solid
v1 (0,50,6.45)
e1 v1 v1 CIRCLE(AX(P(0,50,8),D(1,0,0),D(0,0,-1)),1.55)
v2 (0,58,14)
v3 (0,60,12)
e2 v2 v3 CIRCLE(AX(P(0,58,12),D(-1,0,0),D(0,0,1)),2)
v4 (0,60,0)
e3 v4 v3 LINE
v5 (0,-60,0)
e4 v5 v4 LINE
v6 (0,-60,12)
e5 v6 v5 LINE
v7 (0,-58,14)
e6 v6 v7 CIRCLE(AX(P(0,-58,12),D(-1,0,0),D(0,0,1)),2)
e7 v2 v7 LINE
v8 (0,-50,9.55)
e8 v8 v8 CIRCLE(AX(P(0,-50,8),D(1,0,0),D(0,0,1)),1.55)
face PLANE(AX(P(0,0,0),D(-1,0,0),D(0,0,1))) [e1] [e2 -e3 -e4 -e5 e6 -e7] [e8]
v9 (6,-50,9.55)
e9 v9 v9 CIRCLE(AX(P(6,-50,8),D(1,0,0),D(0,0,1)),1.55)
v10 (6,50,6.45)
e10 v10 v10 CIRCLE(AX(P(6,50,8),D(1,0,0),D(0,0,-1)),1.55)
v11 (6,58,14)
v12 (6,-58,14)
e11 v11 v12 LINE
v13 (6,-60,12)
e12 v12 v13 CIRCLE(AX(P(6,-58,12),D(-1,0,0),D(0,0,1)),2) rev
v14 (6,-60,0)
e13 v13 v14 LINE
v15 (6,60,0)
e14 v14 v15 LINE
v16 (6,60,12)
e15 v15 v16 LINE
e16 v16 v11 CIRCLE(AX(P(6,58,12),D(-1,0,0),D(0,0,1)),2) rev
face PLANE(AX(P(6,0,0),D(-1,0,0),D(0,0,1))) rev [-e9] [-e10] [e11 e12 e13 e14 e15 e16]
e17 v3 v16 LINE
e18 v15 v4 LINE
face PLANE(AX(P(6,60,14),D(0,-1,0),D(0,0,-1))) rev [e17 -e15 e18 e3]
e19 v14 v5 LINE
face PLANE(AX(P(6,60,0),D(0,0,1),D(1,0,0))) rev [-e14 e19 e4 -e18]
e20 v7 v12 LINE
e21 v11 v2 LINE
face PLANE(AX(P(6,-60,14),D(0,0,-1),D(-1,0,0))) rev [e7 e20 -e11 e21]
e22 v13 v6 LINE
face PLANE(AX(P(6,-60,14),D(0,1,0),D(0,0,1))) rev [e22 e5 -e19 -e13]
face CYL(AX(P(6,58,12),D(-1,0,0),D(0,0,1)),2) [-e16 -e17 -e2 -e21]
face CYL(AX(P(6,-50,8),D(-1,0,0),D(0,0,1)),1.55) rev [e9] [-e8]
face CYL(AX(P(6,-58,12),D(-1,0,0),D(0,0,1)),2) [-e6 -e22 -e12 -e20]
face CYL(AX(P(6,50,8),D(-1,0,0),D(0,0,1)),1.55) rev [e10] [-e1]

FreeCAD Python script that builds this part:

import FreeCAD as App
import Part
import Sketcher

V = App.Vector


def edges_at(feature, points):
    """Names of the edges that pass closest to the given points."""
    edges = feature.Shape.Edges
    near = lambda p: min(range(len(edges)), key=lambda i: edges[i].distToShape(Part.Vertex(*p))[0])
    return sorted({f"Edge{near(p) + 1}" for p in points})

doc = App.newDocument("Part")
body = doc.addObject("PartDesign::Body", "Body")

# Sketch on YZ plane
sketch1 = doc.addObject("Sketcher::SketchObject", "Sketch")
body.addObject(sketch1)
sketch1.AttachmentSupport = (doc.YZ_Plane, [""])
sketch1.MapMode = "FlatFace"
sketch1.addGeometry(Part.LineSegment(V(60, 14, 0), V(-60, 14, 0)), False)
sketch1.addGeometry(Part.LineSegment(V(-60, 14, 0), V(-60, 0, 0)), False)
sketch1.addGeometry(Part.LineSegment(V(-60, 0, 0), V(60, 0, 0)), False)
sketch1.addGeometry(Part.LineSegment(V(60, 0, 0), V(60, 14, 0)), False)
sketch1.addGeometry(Part.Circle(V(-50, 8, 0), V(0, 0, 1), 1.6), False)
sketch1.addGeometry(Part.Circle(V(50, 8, 0), V(0, 0, 1), 1.6), False)
sketch1.addConstraint(Sketcher.Constraint("Coincident", 0, 2, 1, 1))
sketch1.addConstraint(Sketcher.Constraint("Coincident", 1, 2, 2, 1))
sketch1.addConstraint(Sketcher.Constraint("Coincident", 2, 2, 3, 1))
sketch1.addConstraint(Sketcher.Constraint("Coincident", 3, 2, 0, 1))
sketch1.addConstraint(Sketcher.Constraint("Horizontal", 0))
sketch1.addConstraint(Sketcher.Constraint("Vertical", 1))
sketch1.addConstraint(Sketcher.Constraint("Horizontal", 2))
sketch1.addConstraint(Sketcher.Constraint("Vertical", 3))
sketch1.addConstraint(Sketcher.Constraint("Equal", 4, 5))
sketch1.addConstraint(Sketcher.Constraint("Symmetric", 1, 2, 2, 2, -1, 1))
sketch1.addConstraint(Sketcher.Constraint("Symmetric", 4, 3, 5, 3, -2))
sketch1.addConstraint(Sketcher.Constraint("Diameter", 4, 3.1))
sketch1.addConstraint(Sketcher.Constraint("DistanceX", 0, 2, 0, 1, 120.0))
sketch1.addConstraint(Sketcher.Constraint("DistanceY", 1, 2, 1, 1, 14.0))
sketch1.addConstraint(Sketcher.Constraint("DistanceX", 4, 3, -1, 1, 50.0))
sketch1.addConstraint(Sketcher.Constraint("DistanceY", -1, 1, 4, 3, 8.0))
pad1 = doc.addObject("PartDesign::Pad", "Pad")
body.addObject(pad1)
pad1.Profile = sketch1
pad1.Length = 6
doc.recompute()

fillet = doc.addObject("PartDesign::Fillet", "Fillet")
body.addObject(fillet)
fillet.Base = (pad1, edges_at(pad1, [(3, -60, 14), (3, 60, 14)]))
fillet.Radius = 2

doc.recompute()
